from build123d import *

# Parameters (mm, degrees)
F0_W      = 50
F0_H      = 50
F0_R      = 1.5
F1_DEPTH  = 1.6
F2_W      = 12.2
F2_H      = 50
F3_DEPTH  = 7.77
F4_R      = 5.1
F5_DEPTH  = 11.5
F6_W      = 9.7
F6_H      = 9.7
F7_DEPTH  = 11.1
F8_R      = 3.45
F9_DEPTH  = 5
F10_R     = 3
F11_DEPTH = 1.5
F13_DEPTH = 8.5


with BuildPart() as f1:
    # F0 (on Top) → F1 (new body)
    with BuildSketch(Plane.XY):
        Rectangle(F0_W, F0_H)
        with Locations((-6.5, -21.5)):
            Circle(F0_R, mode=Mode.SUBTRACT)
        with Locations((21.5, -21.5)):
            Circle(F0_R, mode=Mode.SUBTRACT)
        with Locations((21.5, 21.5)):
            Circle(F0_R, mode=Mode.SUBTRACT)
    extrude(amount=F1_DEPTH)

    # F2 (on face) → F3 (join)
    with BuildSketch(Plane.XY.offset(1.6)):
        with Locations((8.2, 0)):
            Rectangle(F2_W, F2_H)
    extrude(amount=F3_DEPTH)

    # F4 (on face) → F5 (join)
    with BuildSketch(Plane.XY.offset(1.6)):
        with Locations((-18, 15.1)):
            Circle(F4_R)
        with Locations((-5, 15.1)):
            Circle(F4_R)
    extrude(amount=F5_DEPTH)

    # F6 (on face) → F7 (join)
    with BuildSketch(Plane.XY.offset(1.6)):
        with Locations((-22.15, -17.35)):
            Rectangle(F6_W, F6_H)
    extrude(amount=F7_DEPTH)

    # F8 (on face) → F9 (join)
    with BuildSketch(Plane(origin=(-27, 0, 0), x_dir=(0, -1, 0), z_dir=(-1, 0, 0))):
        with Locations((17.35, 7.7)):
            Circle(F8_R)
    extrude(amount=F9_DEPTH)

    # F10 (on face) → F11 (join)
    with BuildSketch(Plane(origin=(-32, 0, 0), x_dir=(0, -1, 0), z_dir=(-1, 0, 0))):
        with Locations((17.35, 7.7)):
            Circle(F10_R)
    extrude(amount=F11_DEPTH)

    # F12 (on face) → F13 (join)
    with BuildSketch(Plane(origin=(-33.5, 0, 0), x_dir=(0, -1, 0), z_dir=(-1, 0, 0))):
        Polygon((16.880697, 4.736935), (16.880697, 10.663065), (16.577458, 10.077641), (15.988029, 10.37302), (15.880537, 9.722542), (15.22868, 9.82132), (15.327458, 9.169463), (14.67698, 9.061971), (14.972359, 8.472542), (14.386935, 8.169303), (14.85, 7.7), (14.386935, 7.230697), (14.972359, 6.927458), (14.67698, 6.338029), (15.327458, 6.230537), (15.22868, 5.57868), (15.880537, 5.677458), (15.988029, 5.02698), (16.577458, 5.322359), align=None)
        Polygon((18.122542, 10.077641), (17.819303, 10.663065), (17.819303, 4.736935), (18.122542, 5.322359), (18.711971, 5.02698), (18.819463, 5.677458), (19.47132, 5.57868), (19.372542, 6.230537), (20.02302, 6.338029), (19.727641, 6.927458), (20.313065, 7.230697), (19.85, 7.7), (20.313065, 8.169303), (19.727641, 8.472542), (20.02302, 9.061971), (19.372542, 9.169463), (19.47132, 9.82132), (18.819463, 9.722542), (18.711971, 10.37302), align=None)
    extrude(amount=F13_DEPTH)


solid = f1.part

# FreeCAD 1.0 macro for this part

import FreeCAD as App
import Part
import Sketcher

V = App.Vector
Q = App.Units.Quantity


def add_polygon(sketch, points):
    """Adds a closed chain of lines whose ends are joined by coincident constraints."""
    first, n = sketch.GeometryCount, len(points)
    for a, b in zip(points, points[1:] + points[:1]):
        sketch.addGeometry(Part.LineSegment(App.Vector(*a, 0), App.Vector(*b, 0)), False)
    for i in range(n):
        sketch.addConstraint(Sketcher.Constraint("Coincident", first + i, 2, first + (i + 1) % n, 1))

doc = App.newDocument("Part")
body = doc.addObject("PartDesign::Body", "Body")

# Sketch on XY plane
sketch1 = doc.addObject("Sketcher::SketchObject", "Sketch")
body.addObject(sketch1)
sketch1.AttachmentSupport = (doc.XY_Plane, [""])
sketch1.MapMode = "FlatFace"
add_polygon(sketch1, [(-25, 25), (-25, -25), (25, -25), (25, 25)])  # lines 0-3
sketch1.addGeometry(Part.Circle(V(-6.5, -21.5, 0), V(0, 0, 1), 1.5), False)  # 4
sketch1.addGeometry(Part.Circle(V(21.5, -21.5, 0), V(0, 0, 1), 1.5), False)  # 5
sketch1.addGeometry(Part.Circle(V(21.5, 21.5, 0), V(0, 0, 1), 1.5), False)  # 6
sketch1.addConstraint([
    Sketcher.Constraint("Vertical", 0),
    Sketcher.Constraint("Horizontal", 1),
    Sketcher.Constraint("Vertical", 2),
    Sketcher.Constraint("Horizontal", 3),
    Sketcher.Constraint("Equal", 4, 5),
    Sketcher.Constraint("Equal", 5, 6),
    Sketcher.Constraint("Symmetric", 0, 2, 2, 2, -1, 1),
    Sketcher.Constraint("Symmetric", 5, 3, 6, 3, -1),
    Sketcher.Constraint("Horizontal", 4, 3, 5, 3),
    Sketcher.Constraint("Equal", 3, 0),
    Sketcher.Constraint("Diameter", 4, Q("3 mm")),
    Sketcher.Constraint("DistanceX", 1, 1, 1, 2, Q("50 mm")),
    Sketcher.Constraint("DistanceX", 4, 3, 5, 3, Q("28 mm")),
    Sketcher.Constraint("DistanceY", 5, 3, 6, 3, Q("43 mm")),
    Sketcher.Constraint("DistanceX", 4, 3, -1, 1, Q("6.5 mm")),
])
pad1 = doc.addObject("PartDesign::Pad", "Pad")
body.addObject(pad1)
pad1.Profile = sketch1
pad1.Length = 1.6

# Sketch on XY plane
sketch2 = doc.addObject("Sketcher::SketchObject", "Sketch001")
body.addObject(sketch2)
sketch2.AttachmentSupport = (doc.XY_Plane, [""])
sketch2.MapMode = "FlatFace"
sketch2.AttachmentOffset = App.Placement(V(0, 0, 1.6), App.Rotation())
add_polygon(sketch2, [(2.1, 25), (2.1, -25), (14.3, -25), (14.3, 25)])  # lines 0-3
sketch2.addConstraint([
    Sketcher.Constraint("Vertical", 0),
    Sketcher.Constraint("Horizontal", 1),
    Sketcher.Constraint("Vertical", 2),
    Sketcher.Constraint("Horizontal", 3),
    Sketcher.Constraint("DistanceY", 0, 2, 0, 1, Q("50 mm")),
    Sketcher.Constraint("DistanceX", 1, 1, 1, 2, Q("12.2 mm")),
    Sketcher.Constraint("DistanceY", 0, 2, -1, 1, Q("25 mm")),
    Sketcher.Constraint("DistanceX", -1, 1, 0, 2, Q("2.1 mm")),
])
pad2 = doc.addObject("PartDesign::Pad", "Pad001")
body.addObject(pad2)
pad2.Profile = sketch2
pad2.Length = 7.77

# Sketch on XY plane
sketch3 = doc.addObject("Sketcher::SketchObject", "Sketch002")
body.addObject(sketch3)
sketch3.AttachmentSupport = (doc.XY_Plane, [""])
sketch3.MapMode = "FlatFace"
sketch3.AttachmentOffset = App.Placement(V(0, 0, 1.6), App.Rotation())
sketch3.addGeometry([
    Part.Circle(V(-18, 15.1, 0), V(0, 0, 1), 5.1),
    Part.Circle(V(-5, 15.1, 0), V(0, 0, 1), 5.1),
], False)
sketch3.addConstraint([
    Sketcher.Constraint("Equal", 0, 1),
    Sketcher.Constraint("Horizontal", 0, 3, 1, 3),
    Sketcher.Constraint("Diameter", 0, Q("10.2 mm")),
    Sketcher.Constraint("DistanceX", 0, 3, -1, 1, Q("18 mm")),
    Sketcher.Constraint("DistanceX", 1, 3, -1, 1, Q("5 mm")),
    Sketcher.Constraint("DistanceY", -1, 1, 0, 3, Q("15.1 mm")),
])
pad3 = doc.addObject("PartDesign::Pad", "Pad002")
body.addObject(pad3)
pad3.Profile = sketch3
pad3.Length = 11.5

# Sketch on XY plane
sketch4 = doc.addObject("Sketcher::SketchObject", "Sketch003")
body.addObject(sketch4)
sketch4.AttachmentSupport = (doc.XY_Plane, [""])
sketch4.MapMode = "FlatFace"
sketch4.AttachmentOffset = App.Placement(V(0, 0, 1.6), App.Rotation())
add_polygon(sketch4, [(-27, -12.5), (-27, -22.2), (-17.3, -22.2), (-17.3, -12.5)])  # lines 0-3
sketch4.addConstraint([
    Sketcher.Constraint("Vertical", 0),
    Sketcher.Constraint("Horizontal", 1),
    Sketcher.Constraint("Vertical", 2),
    Sketcher.Constraint("Horizontal", 3),
    Sketcher.Constraint("Equal", 3, 0),
    Sketcher.Constraint("DistanceX", 1, 1, 1, 2, Q("9.7 mm")),
    Sketcher.Constraint("DistanceX", 0, 2, -1, 1, Q("27 mm")),
    Sketcher.Constraint("DistanceY", 0, 2, -1, 1, Q("22.2 mm")),
])
pad4 = doc.addObject("PartDesign::Pad", "Pad003")
body.addObject(pad4)
pad4.Profile = sketch4
pad4.Length = 11.1

# Sketch on YZ plane
sketch5 = doc.addObject("Sketcher::SketchObject", "Sketch004")
body.addObject(sketch5)
sketch5.AttachmentSupport = (doc.YZ_Plane, [""])
sketch5.MapMode = "FlatFace"
sketch5.AttachmentOffset = App.Placement(V(0, 0, -27), App.Rotation())
sketch5.addGeometry(Part.Circle(V(-17.35, 7.7, 0), V(0, 0, 1), 3.45), False)
sketch5.addConstraint([
    Sketcher.Constraint("Diameter", 0, Q("6.9 mm")),
    Sketcher.Constraint("DistanceY", -1, 1, 0, 3, Q("7.7 mm")),
    Sketcher.Constraint("DistanceX", 0, 3, -1, 1, Q("17.35 mm")),
])
pad5 = doc.addObject("PartDesign::Pad", "Pad004")
body.addObject(pad5)
pad5.Profile = sketch5
pad5.Length = 5
pad5.Reversed = True

# Sketch on YZ plane
sketch6 = doc.addObject("Sketcher::SketchObject", "Sketch005")
body.addObject(sketch6)
sketch6.AttachmentSupport = (doc.YZ_Plane, [""])
sketch6.MapMode = "FlatFace"
sketch6.AttachmentOffset = App.Placement(V(0, 0, -32), App.Rotation())
sketch6.addGeometry(Part.Circle(V(-17.35, 7.7, 0), V(0, 0, 1), 3), False)
sketch6.addConstraint([
    Sketcher.Constraint("Diameter", 0, Q("6 mm")),
    Sketcher.Constraint("DistanceY", -1, 1, 0, 3, Q("7.7 mm")),
    Sketcher.Constraint("DistanceX", 0, 3, -1, 1, Q("17.35 mm")),
])
pad6 = doc.addObject("PartDesign::Pad", "Pad005")
body.addObject(pad6)
pad6.Profile = sketch6
pad6.Length = 1.5
pad6.Reversed = True

# Sketch on YZ plane
sketch7 = doc.addObject("Sketcher::SketchObject", "Sketch006")
body.addObject(sketch7)
sketch7.AttachmentSupport = (doc.YZ_Plane, [""])
sketch7.MapMode = "FlatFace"
sketch7.AttachmentOffset = App.Placement(V(0, 0, -33.5), App.Rotation())
add_polygon(sketch7, [(-16.880697, 4.736935), (-16.880697, 10.663065), (-16.577458, 10.077641), (-15.988029, 10.37302), (-15.880537, 9.722542), (-15.22868, 9.82132), (-15.327458, 9.169463), (-14.67698, 9.061971), (-14.972359, 8.472542), (-14.386935, 8.169303), (-14.85, 7.7), (-14.386935, 7.230697), (-14.972359, 6.927458), (-14.67698, 6.338029), (-15.327458, 6.230537), (-15.22868, 5.57868), (-15.880537, 5.677458), (-15.988029, 5.02698), (-16.577458, 5.322359)])  # lines 0-18
add_polygon(sketch7, [(-18.122542, 10.077641), (-17.819303, 10.663065), (-17.819303, 4.736935), (-18.122542, 5.322359), (-18.711971, 5.02698), (-18.819463, 5.677458), (-19.47132, 5.57868), (-19.372542, 6.230537), (-20.02302, 6.338029), (-19.727641, 6.927458), (-20.313065, 7.230697), (-19.85, 7.7), (-20.313065, 8.169303), (-19.727641, 8.472542), (-20.02302, 9.061971), (-19.372542, 9.169463), (-19.47132, 9.82132), (-18.819463, 9.722542), (-18.711971, 10.37302)])  # lines 19-37
sketch7.addConstraint([
    Sketcher.Constraint("Vertical", 0),
    Sketcher.Constraint("Vertical", 20),
    Sketcher.Constraint("Perpendicular", 1, 11),
    Sketcher.Constraint("Perpendicular", 2, 12),
    Sketcher.Constraint("Perpendicular", 3, 13),
    Sketcher.Constraint("Perpendicular", 4, 14),
    Sketcher.Constraint("Perpendicular", 5, 15),
    Sketcher.Constraint("Perpendicular", 6, 16),
    Sketcher.Constraint("Perpendicular", 7, 17),
    Sketcher.Constraint("Perpendicular", 8, 18),
    Sketcher.Constraint("Parallel", 18, 19),
    Sketcher.Constraint("Perpendicular", 11, 21),
    Sketcher.Constraint("Perpendicular", 12, 22),
    Sketcher.Constraint("Perpendicular", 13, 23),
    Sketcher.Constraint("Perpendicular", 14, 24),
    Sketcher.Constraint("Perpendicular", 15, 25),
    Sketcher.Constraint("Perpendicular", 16, 26),
    Sketcher.Constraint("Perpendicular", 17, 27),
    Sketcher.Constraint("Perpendicular", 19, 28),
    Sketcher.Constraint("Parallel", 9, 29),
    Sketcher.Constraint("Parallel", 10, 30),
    Sketcher.Constraint("Perpendicular", 21, 31),
    Sketcher.Constraint("Perpendicular", 22, 32),
    Sketcher.Constraint("Perpendicular", 23, 33),
    Sketcher.Constraint("Perpendicular", 24, 34),
    Sketcher.Constraint("Perpendicular", 25, 35),
    Sketcher.Constraint("Perpendicular", 26, 36),
    Sketcher.Constraint("Perpendicular", 27, 37),
    Sketcher.Constraint("Horizontal", 0, 2, 19, 2),
    Sketcher.Constraint("Horizontal", 18, 2, 20, 2),
    Sketcher.Constraint("Horizontal", 17, 2, 21, 2),
    Sketcher.Constraint("Horizontal", 16, 2, 22, 2),
    Sketcher.Constraint("Horizontal", 15, 2, 23, 2),
    Sketcher.Constraint("Horizontal", 14, 2, 24, 2),
    Sketcher.Constraint("Horizontal", 13, 2, 25, 2),
    Sketcher.Constraint("Horizontal", 12, 2, 26, 2),
    Sketcher.Constraint("Horizontal", 11, 2, 27, 2),
    Sketcher.Constraint("Horizontal", 10, 2, 28, 2),
    Sketcher.Constraint("Horizontal", 9, 2, 29, 2),
    Sketcher.Constraint("Horizontal", 8, 2, 30, 2),
    Sketcher.Constraint("Horizontal", 7, 2, 31, 2),
    Sketcher.Constraint("Horizontal", 6, 2, 32, 2),
    Sketcher.Constraint("Horizontal", 5, 2, 33, 2),
    Sketcher.Constraint("Horizontal", 4, 2, 34, 2),
    Sketcher.Constraint("Horizontal", 3, 2, 35, 2),
    Sketcher.Constraint("Horizontal", 2, 2, 36, 2),
    Sketcher.Constraint("Horizontal", 1, 2, 37, 2),
    Sketcher.Constraint("Vertical", 8, 2, 10, 2),
    Sketcher.Constraint("Vertical", 7, 2, 11, 2),
    Sketcher.Constraint("Vertical", 6, 2, 12, 2),
    Sketcher.Constraint("Vertical", 5, 2, 13, 2),
    Sketcher.Constraint("Vertical", 4, 2, 14, 2),
    Sketcher.Constraint("Vertical", 3, 2, 15, 2),
    Sketcher.Constraint("Vertical", 2, 2, 16, 2),
    Sketcher.Constraint("Vertical", 1, 2, 17, 2),
    Sketcher.Constraint("Vertical", 28, 2, 30, 2),
    Sketcher.Constraint("Vertical", 27, 2, 31, 2),
    Sketcher.Constraint("Vertical", 26, 2, 32, 2),
    Sketcher.Constraint("Vertical", 25, 2, 33, 2),
    Sketcher.Constraint("Equal", 1, 2),
    Sketcher.Constraint("Equal", 2, 3),
    Sketcher.Constraint("Equal", 3, 4),
    Sketcher.Constraint("Equal", 4, 5),
    Sketcher.Constraint("Equal", 5, 6),
    Sketcher.Constraint("Equal", 6, 7),
    Sketcher.Constraint("Equal", 7, 8),
    Sketcher.Constraint("Equal", 8, 9),
    Sketcher.Constraint("DistanceY", -1, 1, 9, 2, Q("7.7 mm")),
    Sketcher.Constraint("DistanceX", 9, 2, -1, 1, Q("14.85 mm")),
    Sketcher.Constraint("DistanceX", 29, 2, -1, 1, Q("19.85 mm")),
    Sketcher.Constraint("DistanceX", 1, 2, 5, 2, Q("1.25 mm")),
    Sketcher.Constraint("Distance", 1, Q("0.659299 mm")),
    Sketcher.Constraint("DistanceY", 0, 1, 0, 2, Q("5.92613 mm")),
    Sketcher.Constraint("DistanceY", 3, 2, 1, 2, Q("0.355099 mm")),
    Sketcher.Constraint("DistanceY", 4, 2, 2, 2, Q("0.5517 mm")),
    Sketcher.Constraint("DistanceY", 5, 2, 0, 2, Q("1.493602 mm")),
])
pad7 = doc.addObject("PartDesign::Pad", "Pad006")
body.addObject(pad7)
pad7.Profile = sketch7
pad7.Length = 8.5
pad7.Reversed = True

doc.recompute()
